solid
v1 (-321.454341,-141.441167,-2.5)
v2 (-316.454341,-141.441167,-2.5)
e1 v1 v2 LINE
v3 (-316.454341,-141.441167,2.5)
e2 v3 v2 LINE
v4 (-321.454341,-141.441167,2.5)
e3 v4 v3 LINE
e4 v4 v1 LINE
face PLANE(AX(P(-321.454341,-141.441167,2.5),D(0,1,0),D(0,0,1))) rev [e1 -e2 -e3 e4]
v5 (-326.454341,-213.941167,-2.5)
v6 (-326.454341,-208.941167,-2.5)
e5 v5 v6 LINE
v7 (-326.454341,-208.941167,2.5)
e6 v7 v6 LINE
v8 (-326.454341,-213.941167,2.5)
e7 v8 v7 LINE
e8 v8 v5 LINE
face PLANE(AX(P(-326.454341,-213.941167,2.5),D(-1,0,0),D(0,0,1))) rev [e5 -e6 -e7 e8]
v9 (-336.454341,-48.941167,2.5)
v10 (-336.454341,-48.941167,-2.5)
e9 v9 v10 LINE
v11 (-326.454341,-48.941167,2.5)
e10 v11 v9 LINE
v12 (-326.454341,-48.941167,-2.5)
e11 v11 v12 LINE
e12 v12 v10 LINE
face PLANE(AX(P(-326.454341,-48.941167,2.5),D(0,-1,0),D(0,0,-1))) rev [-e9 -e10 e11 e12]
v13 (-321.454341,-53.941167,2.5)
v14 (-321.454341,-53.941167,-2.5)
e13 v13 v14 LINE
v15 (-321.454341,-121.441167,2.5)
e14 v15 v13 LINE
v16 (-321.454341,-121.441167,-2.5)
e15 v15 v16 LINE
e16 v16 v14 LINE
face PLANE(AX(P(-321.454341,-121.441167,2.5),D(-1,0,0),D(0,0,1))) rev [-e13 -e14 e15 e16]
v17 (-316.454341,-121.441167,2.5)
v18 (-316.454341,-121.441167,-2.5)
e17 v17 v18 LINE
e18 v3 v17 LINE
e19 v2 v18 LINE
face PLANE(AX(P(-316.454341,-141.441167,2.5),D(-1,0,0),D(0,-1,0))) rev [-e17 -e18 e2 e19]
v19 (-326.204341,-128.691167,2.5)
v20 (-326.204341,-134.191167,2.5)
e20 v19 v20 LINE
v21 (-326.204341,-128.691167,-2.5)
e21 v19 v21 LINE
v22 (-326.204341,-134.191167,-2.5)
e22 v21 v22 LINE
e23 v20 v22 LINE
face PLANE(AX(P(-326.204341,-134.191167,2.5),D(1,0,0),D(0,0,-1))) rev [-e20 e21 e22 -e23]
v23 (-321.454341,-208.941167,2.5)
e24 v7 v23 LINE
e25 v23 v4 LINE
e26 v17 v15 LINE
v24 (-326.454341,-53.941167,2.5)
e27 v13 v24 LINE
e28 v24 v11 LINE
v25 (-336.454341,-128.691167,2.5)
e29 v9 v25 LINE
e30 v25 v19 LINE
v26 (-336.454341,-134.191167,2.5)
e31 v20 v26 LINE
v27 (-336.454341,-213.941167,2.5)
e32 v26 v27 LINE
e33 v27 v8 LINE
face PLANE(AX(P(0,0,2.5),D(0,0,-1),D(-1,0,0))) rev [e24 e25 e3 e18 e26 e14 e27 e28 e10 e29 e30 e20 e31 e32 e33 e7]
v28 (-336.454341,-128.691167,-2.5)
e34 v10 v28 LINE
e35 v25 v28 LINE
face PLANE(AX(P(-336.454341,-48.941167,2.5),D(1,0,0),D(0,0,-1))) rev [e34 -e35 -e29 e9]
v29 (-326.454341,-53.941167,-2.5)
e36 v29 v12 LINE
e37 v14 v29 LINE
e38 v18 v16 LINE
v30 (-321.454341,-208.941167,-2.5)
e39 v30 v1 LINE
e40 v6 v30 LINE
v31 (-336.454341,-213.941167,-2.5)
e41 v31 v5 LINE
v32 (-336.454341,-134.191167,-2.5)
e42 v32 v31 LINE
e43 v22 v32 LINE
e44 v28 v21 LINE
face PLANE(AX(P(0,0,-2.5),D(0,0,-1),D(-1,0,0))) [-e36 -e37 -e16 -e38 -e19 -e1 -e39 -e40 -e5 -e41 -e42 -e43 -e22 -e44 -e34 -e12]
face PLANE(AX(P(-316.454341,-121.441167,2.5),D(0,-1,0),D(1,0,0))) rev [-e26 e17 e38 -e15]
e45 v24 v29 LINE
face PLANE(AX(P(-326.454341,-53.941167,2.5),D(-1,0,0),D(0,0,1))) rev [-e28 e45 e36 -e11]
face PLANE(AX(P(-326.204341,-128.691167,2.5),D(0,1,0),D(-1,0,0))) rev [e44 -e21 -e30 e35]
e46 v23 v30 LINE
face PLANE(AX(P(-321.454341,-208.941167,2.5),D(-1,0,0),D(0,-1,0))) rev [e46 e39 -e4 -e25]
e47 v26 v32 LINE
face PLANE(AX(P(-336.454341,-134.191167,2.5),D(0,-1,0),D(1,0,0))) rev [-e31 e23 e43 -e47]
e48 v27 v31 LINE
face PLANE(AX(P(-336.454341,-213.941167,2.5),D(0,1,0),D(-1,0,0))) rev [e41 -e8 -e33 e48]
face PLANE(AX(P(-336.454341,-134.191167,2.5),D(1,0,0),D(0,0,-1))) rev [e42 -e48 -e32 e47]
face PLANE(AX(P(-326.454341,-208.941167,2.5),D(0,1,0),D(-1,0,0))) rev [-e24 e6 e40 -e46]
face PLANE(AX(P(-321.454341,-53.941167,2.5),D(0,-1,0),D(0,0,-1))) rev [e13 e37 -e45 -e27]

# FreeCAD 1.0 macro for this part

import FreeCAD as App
import Part
import Sketcher

V = App.Vector

doc = App.newDocument("Part")
body = doc.addObject("PartDesign::Body", "Body")

# Sketch on XY plane
sketch1 = body.newObject("Sketcher::SketchObject", "Sketch")
sketch1.AttachmentSupport = (doc.getObject("XY_Plane"), [""])
sketch1.MapMode = "FlatFace"
sketch1.addGeometry([
    Part.LineSegment(V(-326.454341, -53.941167, 0), V(-326.454341, -48.941167, 0)),  # 0
    Part.LineSegment(V(-326.454341, -48.941167, 0), V(-336.454341, -48.941167, 0)),  # 1
    Part.LineSegment(V(-336.454341, -48.941167, 0), V(-336.454341, -128.691167, 0)),  # 2
    Part.LineSegment(V(-336.454341, -128.691167, 0), V(-326.204341, -128.691167, 0)),  # 3
    Part.LineSegment(V(-326.204341, -128.691167, 0), V(-326.204341, -134.191167, 0)),  # 4
    Part.LineSegment(V(-326.204341, -134.191167, 0), V(-336.454341, -134.191167, 0)),  # 5
    Part.LineSegment(V(-336.454341, -134.191167, 0), V(-336.454341, -213.941167, 0)),  # 6
    Part.LineSegment(V(-336.454341, -213.941167, 0), V(-326.454341, -213.941167, 0)),  # 7
    Part.LineSegment(V(-326.454341, -213.941167, 0), V(-326.454341, -208.941167, 0)),  # 8
    Part.LineSegment(V(-326.454341, -208.941167, 0), V(-321.454341, -208.941167, 0)),  # 9
    Part.LineSegment(V(-321.454341, -208.941167, 0), V(-321.454341, -141.441167, 0)),  # 10
    Part.LineSegment(V(-321.454341, -141.441167, 0), V(-316.454341, -141.441167, 0)),  # 11
    Part.LineSegment(V(-316.454341, -141.441167, 0), V(-316.454341, -121.441167, 0)),  # 12
    Part.LineSegment(V(-316.454341, -121.441167, 0), V(-321.454341, -121.441167, 0)),  # 13
    Part.LineSegment(V(-321.454341, -121.441167, 0), V(-321.454341, -53.941167, 0)),  # 14
    Part.LineSegment(V(-321.454341, -53.941167, 0), V(-326.454341, -53.941167, 0)),  # 15
], False)
sketch1.addConstraint([
    Sketcher.Constraint("Coincident", 0, 2, 1, 1),
    Sketcher.Constraint("Coincident", 1, 2, 2, 1),
    Sketcher.Constraint("Coincident", 2, 2, 3, 1),
    Sketcher.Constraint("Coincident", 3, 2, 4, 1),
    Sketcher.Constraint("Coincident", 4, 2, 5, 1),
    Sketcher.Constraint("Coincident", 5, 2, 6, 1),
    Sketcher.Constraint("Coincident", 6, 2, 7, 1),
    Sketcher.Constraint("Coincident", 7, 2, 8, 1),
    Sketcher.Constraint("Coincident", 8, 2, 9, 1),
    Sketcher.Constraint("Coincident", 9, 2, 10, 1),
    Sketcher.Constraint("Coincident", 10, 2, 11, 1),
    Sketcher.Constraint("Coincident", 11, 2, 12, 1),
    Sketcher.Constraint("Coincident", 12, 2, 13, 1),
    Sketcher.Constraint("Coincident", 13, 2, 14, 1),
    Sketcher.Constraint("Coincident", 14, 2, 15, 1),
    Sketcher.Constraint("Coincident", 15, 2, 0, 1),
    Sketcher.Constraint("Vertical", 0),
    Sketcher.Constraint("Horizontal", 1),
    Sketcher.Constraint("Vertical", 2),
    Sketcher.Constraint("Horizontal", 3),
    Sketcher.Constraint("Vertical", 4),
    Sketcher.Constraint("Horizontal", 5),
    Sketcher.Constraint("Vertical", 6),
    Sketcher.Constraint("Horizontal", 7),
    Sketcher.Constraint("Vertical", 8),
    Sketcher.Constraint("Horizontal", 9),
    Sketcher.Constraint("Vertical", 10),
    Sketcher.Constraint("Horizontal", 11),
    Sketcher.Constraint("Vertical", 12),
    Sketcher.Constraint("Horizontal", 13),
    Sketcher.Constraint("Vertical", 14),
    Sketcher.Constraint("Horizontal", 15),
    Sketcher.Constraint("Vertical", 2, 2, 5, 2),
    Sketcher.Constraint("Vertical", 0, 2, 7, 2),
    Sketcher.Constraint("Vertical", 10, 2, 13, 2),
    Sketcher.Constraint("Equal", 9, 11),
    Sketcher.Constraint("Equal", 15, 0),
    Sketcher.Constraint("Equal", 2, 6),
    Sketcher.Constraint("Equal", 0, 8),
    Sketcher.Constraint("Equal", 10, 14),
    Sketcher.Constraint("DistanceX", 1, 2, 1, 1, 10.0),
    Sketcher.Constraint("DistanceX", 9, 1, 9, 2, 5.0),
    Sketcher.Constraint("DistanceY", 12, 1, 12, 2, 20.0),
    Sketcher.Constraint("DistanceY", 4, 2, 4, 1, 5.5),
    Sketcher.Constraint("DistanceY", 10, 1, 10, 2, 67.5),
    Sketcher.Constraint("DistanceX", 3, 1, 3, 2, 10.25),
    Sketcher.Constraint("DistanceX", 0, 2, -1, 1, 326.454341),
    Sketcher.Constraint("DistanceY", 0, 2, -1, 1, 48.941167),
])
pad1 = body.newObject("PartDesign::Pad", "Pad")
pad1.Profile = sketch1
pad1.Length = 5
pad1.Midplane = True

doc.recompute()
